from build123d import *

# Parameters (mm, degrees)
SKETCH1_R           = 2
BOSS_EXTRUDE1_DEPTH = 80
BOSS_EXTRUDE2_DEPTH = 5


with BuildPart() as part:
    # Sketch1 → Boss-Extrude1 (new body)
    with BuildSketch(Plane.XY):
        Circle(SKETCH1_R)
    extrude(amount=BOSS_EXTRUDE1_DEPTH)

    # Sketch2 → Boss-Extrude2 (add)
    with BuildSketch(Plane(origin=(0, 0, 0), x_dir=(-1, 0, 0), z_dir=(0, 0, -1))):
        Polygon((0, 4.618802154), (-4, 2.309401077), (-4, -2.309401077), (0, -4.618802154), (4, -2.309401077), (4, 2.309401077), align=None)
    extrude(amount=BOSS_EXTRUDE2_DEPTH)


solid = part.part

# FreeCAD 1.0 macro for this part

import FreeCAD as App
import Part
import Sketcher

V = App.Vector
Q = App.Units.Quantity

doc = App.newDocument("Part")
body = doc.addObject("PartDesign::Body", "Body")

sketch1 = body.newObject("Sketcher::SketchObject", "Sketch")
sketch1.AttachmentSupport = (doc.getObject("XY_Plane"), [""])
sketch1.MapMode = "FlatFace"
sketch1.addGeometry(Part.Circle(V(0, 0, 0), V(0, 0, 1), 2), False)
sketch1.addConstraint([
    Sketcher.Constraint("Coincident", 0, 3, -1, 1),
    Sketcher.Constraint("Diameter", 0, Q("4 mm")),
])
pad1 = body.newObject("PartDesign::Pad", "Pad")
pad1.Profile = sketch1
pad1.Length = 80

sketch2 = body.newObject("Sketcher::SketchObject", "Sketch001")
sketch2.AttachmentSupport = (doc.getObject("XY_Plane"), [""])
sketch2.MapMode = "FlatFace"
sketch2.addGeometry([
    Part.LineSegment(V(0, 4.6, 0), V(4, 2.3, 0)),
    Part.LineSegment(V(4, 2.3, 0), V(4, -2.3, 0)),
    Part.LineSegment(V(4, -2.3, 0), V(0, -4.6, 0)),
    Part.LineSegment(V(0, -4.6, 0), V(-4, -2.3, 0)),
    Part.LineSegment(V(-4, -2.3, 0), V(-4, 2.3, 0)),
    Part.LineSegment(V(-4, 2.3, 0), V(0, 4.6, 0)),
], False)
sketch2.addConstraint([
    Sketcher.Constraint("Coincident", 0, 2, 1, 1),
    Sketcher.Constraint("Coincident", 1, 2, 2, 1),
    Sketcher.Constraint("Coincident", 2, 2, 3, 1),
    Sketcher.Constraint("Coincident", 3, 2, 4, 1),
    Sketcher.Constraint("Coincident", 4, 2, 5, 1),
    Sketcher.Constraint("Coincident", 5, 2, 0, 1),
    Sketcher.Constraint("Vertical", 1),
    Sketcher.Constraint("Vertical", 4),
    Sketcher.Constraint("Symmetric", 0, 2, 3, 2, -1, 1),
    Sketcher.Constraint("Symmetric", 2, 2, 5, 2, -1, 1),
    Sketcher.Constraint("PointOnObject", 2, 2, -2),
    Sketcher.Constraint("Parallel", 2, 5),
    Sketcher.Constraint("Horizontal", 1, 2, 3, 2),
    Sketcher.Constraint("Angle", 0, Q("-30 deg")),
    Sketcher.Constraint("DistanceX", -1, 1, 0, 2, Q("4 mm")),
    Sketcher.Constraint("DistanceY", -1, 1, 0, 2, Q("2.309401 mm")),
])
pad2 = body.newObject("PartDesign::Pad", "Pad001")
pad2.Profile = sketch2
pad2.Length = 5
pad2.Reversed = True

doc.recompute()
